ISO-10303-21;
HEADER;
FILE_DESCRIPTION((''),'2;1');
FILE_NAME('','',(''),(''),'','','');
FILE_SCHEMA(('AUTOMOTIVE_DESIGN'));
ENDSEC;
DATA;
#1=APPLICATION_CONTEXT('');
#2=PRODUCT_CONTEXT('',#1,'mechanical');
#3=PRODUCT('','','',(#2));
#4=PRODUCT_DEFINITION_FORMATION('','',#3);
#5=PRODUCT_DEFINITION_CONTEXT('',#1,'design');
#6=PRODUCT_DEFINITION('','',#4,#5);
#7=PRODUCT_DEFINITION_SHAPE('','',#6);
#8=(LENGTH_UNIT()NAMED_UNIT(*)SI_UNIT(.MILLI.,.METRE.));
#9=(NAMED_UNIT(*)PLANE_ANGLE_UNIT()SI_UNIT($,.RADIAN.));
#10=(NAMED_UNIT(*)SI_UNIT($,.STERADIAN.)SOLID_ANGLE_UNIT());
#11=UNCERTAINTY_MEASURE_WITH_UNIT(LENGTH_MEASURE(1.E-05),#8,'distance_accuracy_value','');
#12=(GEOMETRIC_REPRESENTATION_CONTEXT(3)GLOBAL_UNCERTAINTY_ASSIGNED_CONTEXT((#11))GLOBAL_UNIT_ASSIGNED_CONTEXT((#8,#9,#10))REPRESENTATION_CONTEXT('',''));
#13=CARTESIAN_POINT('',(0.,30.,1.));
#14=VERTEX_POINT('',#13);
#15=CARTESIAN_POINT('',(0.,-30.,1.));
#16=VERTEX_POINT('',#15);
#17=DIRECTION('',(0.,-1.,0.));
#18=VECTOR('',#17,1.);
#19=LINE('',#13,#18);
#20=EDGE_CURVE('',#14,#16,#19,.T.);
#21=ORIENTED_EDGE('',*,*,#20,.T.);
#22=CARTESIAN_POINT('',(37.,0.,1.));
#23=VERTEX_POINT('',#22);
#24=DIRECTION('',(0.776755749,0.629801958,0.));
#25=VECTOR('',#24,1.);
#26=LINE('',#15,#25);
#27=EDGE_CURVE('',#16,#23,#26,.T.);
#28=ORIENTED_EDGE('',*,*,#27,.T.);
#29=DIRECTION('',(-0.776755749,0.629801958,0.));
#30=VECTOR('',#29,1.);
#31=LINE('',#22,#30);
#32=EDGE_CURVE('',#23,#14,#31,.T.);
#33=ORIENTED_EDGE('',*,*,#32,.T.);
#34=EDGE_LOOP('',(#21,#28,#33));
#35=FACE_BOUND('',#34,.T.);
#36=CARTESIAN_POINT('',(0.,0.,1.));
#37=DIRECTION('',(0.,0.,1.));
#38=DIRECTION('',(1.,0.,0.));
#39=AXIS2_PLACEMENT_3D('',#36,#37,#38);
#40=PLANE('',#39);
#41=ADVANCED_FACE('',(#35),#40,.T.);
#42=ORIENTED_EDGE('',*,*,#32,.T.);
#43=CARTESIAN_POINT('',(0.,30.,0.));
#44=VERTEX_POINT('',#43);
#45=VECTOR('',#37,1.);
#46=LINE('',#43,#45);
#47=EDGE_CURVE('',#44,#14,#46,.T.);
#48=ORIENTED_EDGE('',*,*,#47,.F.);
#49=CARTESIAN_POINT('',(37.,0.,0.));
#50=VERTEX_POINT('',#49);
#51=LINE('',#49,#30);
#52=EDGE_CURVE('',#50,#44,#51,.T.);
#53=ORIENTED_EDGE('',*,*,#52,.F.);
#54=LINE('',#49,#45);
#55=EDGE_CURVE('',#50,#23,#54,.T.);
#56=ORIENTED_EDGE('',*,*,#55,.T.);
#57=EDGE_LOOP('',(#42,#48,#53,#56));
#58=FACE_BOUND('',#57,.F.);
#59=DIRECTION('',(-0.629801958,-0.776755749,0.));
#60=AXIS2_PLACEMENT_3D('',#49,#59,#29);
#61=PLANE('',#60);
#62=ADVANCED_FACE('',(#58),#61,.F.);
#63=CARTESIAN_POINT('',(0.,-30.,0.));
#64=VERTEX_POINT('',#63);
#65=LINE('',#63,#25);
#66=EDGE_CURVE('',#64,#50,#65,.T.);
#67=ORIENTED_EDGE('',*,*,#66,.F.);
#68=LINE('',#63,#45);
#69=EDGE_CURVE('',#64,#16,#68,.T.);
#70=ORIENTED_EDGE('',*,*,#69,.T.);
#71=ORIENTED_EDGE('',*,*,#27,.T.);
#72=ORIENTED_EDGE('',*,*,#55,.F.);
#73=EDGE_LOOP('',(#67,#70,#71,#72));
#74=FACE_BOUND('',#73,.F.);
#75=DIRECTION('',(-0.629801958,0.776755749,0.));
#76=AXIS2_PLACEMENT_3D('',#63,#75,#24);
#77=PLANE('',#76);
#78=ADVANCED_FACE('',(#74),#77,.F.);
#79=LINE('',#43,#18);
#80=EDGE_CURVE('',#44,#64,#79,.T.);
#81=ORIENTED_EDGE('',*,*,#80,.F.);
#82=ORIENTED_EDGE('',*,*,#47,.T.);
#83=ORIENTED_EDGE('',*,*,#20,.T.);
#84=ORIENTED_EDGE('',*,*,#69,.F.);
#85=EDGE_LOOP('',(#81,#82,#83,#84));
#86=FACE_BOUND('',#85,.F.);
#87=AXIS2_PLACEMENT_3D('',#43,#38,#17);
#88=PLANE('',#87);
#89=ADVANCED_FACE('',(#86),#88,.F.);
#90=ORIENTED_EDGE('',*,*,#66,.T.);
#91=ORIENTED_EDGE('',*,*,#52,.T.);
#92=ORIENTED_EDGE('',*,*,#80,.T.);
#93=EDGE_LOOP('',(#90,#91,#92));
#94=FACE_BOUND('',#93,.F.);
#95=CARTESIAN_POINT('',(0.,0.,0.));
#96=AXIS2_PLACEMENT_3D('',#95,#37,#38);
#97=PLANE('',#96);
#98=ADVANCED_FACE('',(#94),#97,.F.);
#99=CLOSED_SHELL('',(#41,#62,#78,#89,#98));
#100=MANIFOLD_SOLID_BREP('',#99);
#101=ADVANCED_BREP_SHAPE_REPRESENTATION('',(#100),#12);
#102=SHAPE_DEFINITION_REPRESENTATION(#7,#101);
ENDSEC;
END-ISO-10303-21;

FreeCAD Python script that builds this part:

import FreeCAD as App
import Part
import Sketcher

V = App.Vector
Q = App.Units.Quantity

doc = App.newDocument("Part")
body = doc.addObject("PartDesign::Body", "Body")

# Sketch on XY plane
sketch1 = body.newObject("Sketcher::SketchObject", "Sketch")
sketch1.AttachmentSupport = (doc.getObject("XY_Plane"), [""])
sketch1.MapMode = "FlatFace"
sketch1.addGeometry([
    Part.LineSegment(V(0, -30, 0), V(37, 0, 0)),
    Part.LineSegment(V(37, 0, 0), V(0, 30, 0)),
    Part.LineSegment(V(0, 30, 0), V(0, -30, 0)),
], False)
sketch1.addConstraint([
    Sketcher.Constraint("Coincident", 0, 2, 1, 1),
    Sketcher.Constraint("Coincident", 1, 2, 2, 1),
    Sketcher.Constraint("Coincident", 2, 2, 0, 1),
    Sketcher.Constraint("Vertical", 2),
    Sketcher.Constraint("Symmetric", 1, 2, 2, 2, -1, 1),
    Sketcher.Constraint("PointOnObject", 0, 2, -1),
    Sketcher.Constraint("DistanceY", 2, 2, 2, 1, Q("60 mm")),
    Sketcher.Constraint("DistanceX", -1, 1, 0, 2, Q("37 mm")),
])
pad1 = body.newObject("PartDesign::Pad", "Pad")
pad1.Profile = sketch1
pad1.Length = 1

doc.recompute()
